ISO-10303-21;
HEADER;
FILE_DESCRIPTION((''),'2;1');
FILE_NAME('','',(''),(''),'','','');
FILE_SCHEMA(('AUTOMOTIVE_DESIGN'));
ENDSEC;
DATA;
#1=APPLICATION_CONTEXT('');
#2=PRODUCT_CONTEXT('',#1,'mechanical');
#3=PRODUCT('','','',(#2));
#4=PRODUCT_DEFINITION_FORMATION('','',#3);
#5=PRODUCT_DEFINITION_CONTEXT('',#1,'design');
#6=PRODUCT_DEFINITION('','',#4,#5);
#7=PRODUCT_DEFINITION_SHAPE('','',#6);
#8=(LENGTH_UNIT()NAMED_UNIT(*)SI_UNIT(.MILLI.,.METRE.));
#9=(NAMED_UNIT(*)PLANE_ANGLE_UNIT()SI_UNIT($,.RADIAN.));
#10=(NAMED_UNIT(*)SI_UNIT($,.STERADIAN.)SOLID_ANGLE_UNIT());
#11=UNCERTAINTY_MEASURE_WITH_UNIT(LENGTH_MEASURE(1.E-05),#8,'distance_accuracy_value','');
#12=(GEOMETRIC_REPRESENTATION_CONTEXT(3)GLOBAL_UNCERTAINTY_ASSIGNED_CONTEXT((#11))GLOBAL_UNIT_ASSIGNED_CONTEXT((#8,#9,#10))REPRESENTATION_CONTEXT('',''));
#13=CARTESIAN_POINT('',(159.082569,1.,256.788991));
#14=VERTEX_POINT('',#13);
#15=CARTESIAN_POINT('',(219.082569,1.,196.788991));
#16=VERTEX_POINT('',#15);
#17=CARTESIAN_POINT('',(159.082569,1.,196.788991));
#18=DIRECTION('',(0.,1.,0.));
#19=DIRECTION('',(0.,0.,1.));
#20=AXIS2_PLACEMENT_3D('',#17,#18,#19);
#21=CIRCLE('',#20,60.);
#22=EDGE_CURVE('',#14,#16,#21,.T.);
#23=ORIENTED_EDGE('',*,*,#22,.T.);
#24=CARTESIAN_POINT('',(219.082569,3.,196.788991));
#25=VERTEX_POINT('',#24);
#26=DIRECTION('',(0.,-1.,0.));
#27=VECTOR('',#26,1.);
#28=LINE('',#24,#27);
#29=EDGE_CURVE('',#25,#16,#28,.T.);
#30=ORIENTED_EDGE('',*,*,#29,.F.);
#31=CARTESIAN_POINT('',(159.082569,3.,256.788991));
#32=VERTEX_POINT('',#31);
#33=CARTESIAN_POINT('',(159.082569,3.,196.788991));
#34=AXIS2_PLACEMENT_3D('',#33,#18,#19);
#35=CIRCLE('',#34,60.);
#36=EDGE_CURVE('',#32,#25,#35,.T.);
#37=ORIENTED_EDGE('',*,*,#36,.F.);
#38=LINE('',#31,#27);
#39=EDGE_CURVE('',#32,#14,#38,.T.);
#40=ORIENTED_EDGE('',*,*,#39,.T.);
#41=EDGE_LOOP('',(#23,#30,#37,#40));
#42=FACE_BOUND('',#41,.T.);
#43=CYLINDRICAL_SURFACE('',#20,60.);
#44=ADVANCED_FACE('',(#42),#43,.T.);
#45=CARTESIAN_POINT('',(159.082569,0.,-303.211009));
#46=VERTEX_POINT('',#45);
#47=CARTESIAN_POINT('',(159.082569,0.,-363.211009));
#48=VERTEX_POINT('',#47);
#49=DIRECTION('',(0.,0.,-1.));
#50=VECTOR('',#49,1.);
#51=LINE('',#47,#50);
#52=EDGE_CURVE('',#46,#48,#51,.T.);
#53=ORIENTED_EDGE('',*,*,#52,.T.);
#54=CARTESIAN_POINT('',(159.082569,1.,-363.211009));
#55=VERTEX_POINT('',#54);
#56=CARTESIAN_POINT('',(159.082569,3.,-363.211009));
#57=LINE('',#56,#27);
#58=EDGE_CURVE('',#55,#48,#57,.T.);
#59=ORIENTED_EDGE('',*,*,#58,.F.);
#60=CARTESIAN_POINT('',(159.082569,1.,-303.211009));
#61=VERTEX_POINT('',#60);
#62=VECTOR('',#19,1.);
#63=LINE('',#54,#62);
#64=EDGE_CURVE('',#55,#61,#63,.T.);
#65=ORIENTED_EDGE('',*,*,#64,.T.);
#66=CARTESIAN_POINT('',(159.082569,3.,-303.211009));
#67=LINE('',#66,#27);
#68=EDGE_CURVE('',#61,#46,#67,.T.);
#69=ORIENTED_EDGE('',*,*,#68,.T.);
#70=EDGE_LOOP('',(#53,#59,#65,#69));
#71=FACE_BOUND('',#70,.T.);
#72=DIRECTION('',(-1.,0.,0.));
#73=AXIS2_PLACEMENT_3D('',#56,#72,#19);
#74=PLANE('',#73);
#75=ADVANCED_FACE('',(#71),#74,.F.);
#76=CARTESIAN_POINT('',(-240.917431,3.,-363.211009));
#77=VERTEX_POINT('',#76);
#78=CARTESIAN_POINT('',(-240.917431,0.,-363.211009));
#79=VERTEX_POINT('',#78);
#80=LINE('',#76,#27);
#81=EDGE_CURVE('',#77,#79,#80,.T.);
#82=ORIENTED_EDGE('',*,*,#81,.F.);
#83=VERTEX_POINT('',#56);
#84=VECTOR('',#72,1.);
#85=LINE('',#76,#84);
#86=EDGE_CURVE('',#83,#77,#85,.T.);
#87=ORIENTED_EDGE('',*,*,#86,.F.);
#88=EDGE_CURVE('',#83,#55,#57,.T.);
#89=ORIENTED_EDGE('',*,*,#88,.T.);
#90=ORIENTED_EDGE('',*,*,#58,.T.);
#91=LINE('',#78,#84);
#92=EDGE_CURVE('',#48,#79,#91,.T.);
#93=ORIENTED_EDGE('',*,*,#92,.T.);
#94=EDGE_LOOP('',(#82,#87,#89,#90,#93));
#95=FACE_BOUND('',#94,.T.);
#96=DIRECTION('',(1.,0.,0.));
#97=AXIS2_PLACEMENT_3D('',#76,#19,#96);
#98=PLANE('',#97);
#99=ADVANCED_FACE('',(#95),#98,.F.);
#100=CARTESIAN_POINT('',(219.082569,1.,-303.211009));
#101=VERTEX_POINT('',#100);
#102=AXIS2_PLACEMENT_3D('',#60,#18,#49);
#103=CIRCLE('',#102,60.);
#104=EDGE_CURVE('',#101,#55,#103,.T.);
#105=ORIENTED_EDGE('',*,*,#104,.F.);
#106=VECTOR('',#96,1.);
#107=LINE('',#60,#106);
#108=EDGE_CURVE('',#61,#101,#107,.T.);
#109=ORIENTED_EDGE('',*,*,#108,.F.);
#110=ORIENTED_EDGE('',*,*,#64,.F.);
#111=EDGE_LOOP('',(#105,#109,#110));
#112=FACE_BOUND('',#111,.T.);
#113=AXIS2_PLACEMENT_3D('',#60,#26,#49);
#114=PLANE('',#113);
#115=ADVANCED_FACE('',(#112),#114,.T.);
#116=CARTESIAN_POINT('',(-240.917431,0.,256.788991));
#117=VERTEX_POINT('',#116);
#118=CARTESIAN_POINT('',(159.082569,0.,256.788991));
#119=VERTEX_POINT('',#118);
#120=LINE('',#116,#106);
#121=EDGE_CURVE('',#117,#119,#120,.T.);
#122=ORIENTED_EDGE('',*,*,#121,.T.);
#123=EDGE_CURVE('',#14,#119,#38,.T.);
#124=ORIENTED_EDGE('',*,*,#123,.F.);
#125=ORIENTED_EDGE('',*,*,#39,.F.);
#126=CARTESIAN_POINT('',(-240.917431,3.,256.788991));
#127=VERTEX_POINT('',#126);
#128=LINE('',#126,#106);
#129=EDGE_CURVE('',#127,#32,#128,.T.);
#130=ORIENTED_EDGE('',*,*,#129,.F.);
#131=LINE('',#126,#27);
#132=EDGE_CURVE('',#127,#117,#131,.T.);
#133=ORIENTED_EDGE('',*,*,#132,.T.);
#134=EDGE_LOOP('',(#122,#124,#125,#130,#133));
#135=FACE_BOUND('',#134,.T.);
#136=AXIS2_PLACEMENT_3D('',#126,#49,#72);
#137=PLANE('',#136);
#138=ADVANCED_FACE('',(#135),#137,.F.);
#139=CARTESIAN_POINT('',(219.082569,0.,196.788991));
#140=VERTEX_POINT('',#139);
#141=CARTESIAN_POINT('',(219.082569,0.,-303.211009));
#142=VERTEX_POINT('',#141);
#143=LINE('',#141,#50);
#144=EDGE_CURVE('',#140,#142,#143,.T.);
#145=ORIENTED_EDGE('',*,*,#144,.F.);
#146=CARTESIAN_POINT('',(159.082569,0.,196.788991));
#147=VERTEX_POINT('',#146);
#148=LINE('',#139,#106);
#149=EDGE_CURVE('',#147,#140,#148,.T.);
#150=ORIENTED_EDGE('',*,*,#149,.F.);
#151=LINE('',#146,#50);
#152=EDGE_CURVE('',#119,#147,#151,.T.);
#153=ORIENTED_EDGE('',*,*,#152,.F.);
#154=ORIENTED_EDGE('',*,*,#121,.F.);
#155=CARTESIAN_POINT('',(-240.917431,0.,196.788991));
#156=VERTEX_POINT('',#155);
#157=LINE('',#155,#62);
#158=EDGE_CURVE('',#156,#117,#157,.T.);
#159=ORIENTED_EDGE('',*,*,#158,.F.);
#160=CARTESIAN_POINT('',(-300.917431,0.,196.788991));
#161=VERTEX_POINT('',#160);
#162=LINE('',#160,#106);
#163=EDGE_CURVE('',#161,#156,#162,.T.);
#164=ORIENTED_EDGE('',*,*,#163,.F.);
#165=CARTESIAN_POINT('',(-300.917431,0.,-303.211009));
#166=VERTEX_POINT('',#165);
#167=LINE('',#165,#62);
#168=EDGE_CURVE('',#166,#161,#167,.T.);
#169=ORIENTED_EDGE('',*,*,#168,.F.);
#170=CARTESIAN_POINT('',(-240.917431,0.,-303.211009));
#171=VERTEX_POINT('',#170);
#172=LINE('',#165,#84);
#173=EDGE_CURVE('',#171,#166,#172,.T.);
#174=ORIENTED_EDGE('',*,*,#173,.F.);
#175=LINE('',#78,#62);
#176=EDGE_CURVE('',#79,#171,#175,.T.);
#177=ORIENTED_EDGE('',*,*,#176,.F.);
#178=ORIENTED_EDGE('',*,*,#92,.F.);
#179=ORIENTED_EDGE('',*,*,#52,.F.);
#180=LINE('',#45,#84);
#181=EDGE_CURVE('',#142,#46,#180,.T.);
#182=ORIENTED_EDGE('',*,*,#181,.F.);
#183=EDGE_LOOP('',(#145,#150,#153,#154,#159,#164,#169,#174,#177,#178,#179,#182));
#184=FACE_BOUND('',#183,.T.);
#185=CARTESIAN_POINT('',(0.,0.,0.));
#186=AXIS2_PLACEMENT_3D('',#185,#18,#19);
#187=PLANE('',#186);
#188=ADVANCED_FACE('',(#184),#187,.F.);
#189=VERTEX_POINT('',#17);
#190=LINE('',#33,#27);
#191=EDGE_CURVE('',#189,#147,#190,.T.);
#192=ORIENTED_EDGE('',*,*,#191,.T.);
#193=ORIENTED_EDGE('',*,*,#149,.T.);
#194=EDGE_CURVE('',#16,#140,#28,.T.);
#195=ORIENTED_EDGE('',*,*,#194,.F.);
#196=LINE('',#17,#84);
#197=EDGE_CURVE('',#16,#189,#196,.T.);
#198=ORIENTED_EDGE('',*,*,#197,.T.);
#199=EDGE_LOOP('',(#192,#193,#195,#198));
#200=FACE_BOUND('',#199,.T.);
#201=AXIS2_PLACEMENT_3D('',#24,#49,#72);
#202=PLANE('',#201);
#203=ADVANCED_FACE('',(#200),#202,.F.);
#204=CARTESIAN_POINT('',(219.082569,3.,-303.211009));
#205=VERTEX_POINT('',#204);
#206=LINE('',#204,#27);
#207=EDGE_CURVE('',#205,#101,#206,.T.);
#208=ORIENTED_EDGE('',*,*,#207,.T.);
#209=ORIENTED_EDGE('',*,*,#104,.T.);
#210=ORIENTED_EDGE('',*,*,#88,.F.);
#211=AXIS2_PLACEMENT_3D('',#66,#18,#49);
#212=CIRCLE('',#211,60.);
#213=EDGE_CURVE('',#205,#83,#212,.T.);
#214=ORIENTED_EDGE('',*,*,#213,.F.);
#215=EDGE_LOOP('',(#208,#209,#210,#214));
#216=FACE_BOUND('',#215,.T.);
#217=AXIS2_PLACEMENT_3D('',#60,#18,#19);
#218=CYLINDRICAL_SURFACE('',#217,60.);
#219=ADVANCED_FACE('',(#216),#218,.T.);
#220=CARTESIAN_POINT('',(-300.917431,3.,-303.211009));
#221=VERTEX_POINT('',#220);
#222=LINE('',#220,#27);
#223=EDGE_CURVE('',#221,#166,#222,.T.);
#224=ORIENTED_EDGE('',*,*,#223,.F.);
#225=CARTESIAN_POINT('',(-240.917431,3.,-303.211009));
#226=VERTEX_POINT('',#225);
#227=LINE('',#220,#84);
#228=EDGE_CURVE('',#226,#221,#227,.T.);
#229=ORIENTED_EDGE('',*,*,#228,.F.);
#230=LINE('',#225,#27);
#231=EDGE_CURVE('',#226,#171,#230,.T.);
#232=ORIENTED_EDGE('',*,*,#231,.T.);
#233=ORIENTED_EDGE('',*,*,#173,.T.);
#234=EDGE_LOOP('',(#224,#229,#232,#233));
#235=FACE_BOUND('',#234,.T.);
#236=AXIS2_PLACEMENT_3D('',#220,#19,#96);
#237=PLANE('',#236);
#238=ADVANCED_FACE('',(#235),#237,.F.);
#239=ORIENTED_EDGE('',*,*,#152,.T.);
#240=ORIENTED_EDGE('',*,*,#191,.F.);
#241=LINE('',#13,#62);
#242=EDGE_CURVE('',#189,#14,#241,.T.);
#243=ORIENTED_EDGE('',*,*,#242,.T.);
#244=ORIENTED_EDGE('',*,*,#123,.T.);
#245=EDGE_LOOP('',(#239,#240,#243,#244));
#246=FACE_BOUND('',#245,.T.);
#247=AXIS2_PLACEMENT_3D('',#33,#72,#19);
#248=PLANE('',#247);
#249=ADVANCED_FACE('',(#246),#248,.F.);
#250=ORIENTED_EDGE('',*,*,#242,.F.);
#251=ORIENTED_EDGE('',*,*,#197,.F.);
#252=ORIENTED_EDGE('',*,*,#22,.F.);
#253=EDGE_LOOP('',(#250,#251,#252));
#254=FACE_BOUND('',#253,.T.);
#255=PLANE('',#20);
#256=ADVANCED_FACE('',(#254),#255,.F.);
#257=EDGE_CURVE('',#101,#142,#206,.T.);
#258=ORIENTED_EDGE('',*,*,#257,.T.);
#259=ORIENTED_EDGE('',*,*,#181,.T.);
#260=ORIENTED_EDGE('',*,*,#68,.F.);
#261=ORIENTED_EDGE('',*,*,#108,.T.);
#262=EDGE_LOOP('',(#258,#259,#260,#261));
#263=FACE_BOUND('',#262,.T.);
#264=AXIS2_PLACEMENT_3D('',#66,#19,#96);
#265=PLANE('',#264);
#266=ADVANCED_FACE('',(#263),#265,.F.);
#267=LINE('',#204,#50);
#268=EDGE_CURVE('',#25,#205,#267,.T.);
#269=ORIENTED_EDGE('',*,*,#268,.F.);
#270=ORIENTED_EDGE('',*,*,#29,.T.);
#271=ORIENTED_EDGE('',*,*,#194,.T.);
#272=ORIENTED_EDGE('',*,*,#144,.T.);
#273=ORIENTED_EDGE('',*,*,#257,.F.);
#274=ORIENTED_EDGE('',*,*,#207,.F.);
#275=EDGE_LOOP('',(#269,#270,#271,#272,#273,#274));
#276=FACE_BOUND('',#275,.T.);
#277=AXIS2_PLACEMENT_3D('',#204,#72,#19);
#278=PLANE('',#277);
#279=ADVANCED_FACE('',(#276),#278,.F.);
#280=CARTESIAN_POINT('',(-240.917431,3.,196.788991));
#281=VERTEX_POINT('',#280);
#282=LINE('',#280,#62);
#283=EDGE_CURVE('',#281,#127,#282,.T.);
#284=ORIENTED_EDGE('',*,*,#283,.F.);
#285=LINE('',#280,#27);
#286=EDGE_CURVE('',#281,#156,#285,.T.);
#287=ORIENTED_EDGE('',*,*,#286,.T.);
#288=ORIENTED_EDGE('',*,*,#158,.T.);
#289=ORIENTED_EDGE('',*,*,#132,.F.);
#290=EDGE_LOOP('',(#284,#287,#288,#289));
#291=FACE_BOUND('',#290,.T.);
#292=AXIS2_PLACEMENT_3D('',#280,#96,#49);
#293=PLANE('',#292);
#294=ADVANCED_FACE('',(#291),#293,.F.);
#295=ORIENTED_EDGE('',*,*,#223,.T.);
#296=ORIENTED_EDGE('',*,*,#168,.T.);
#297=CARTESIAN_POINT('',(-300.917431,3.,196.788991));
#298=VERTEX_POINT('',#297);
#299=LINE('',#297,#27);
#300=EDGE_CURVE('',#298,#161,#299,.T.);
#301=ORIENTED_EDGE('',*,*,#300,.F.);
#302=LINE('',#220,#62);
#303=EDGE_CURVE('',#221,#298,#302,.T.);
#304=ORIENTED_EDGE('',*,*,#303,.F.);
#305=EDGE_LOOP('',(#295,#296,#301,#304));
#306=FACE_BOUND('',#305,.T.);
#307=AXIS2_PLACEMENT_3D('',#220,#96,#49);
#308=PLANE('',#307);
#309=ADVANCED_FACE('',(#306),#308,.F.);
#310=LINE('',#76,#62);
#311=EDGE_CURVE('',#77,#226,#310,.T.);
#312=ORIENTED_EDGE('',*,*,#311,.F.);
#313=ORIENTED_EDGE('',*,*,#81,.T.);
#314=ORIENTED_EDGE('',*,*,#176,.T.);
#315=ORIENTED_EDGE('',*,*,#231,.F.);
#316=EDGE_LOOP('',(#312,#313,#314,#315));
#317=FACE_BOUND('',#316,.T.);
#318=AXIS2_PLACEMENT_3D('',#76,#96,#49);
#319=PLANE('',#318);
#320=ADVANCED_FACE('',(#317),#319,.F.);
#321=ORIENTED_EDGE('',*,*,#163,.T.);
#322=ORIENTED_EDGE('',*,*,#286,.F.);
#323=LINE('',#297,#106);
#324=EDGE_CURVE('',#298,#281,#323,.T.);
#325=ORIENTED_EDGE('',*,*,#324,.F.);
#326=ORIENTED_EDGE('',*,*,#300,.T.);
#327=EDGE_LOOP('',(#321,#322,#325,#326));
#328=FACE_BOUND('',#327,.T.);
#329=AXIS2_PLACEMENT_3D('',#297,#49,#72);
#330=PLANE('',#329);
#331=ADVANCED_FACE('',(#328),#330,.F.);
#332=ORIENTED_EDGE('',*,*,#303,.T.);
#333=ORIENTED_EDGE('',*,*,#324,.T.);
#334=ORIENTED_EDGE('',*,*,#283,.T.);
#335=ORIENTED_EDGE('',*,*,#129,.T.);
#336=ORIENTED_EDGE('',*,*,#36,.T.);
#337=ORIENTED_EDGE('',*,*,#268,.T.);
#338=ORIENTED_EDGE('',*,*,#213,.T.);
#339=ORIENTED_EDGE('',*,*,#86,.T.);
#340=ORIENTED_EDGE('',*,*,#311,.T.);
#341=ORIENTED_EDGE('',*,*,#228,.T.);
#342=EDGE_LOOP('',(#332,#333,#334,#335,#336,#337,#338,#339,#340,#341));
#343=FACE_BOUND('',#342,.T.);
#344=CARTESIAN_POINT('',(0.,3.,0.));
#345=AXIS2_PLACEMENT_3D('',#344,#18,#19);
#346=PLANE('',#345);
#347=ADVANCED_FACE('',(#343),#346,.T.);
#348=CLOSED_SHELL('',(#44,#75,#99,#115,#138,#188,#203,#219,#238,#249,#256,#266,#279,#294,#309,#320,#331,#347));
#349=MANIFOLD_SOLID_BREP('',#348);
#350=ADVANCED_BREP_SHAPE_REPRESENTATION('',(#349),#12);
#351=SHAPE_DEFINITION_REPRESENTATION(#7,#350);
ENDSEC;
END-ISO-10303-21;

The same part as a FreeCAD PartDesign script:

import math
import FreeCAD as App
import Part
import Sketcher
from FreeCAD import Vector

doc = App.newDocument("Part")
body = doc.addObject("PartDesign::Body", "Body")

sketch1 = body.newObject("Sketcher::SketchObject", "Sketch")
sketch1.AttachmentSupport = (doc.getObject("XZ_Plane"), [""])
sketch1.MapMode = "FlatFace"
sketch1.addGeometry([
    Part.LineSegment(Vector(-241, 197, 0), Vector(-241, 257, 0)),
    Part.LineSegment(Vector(-241, 257, 0), Vector(159, 257, 0)),
    Part.LineSegment(Vector(159, 257, 0), Vector(159, 197, 0)),
    Part.LineSegment(Vector(159, 197, 0), Vector(219, 197, 0)),
    Part.LineSegment(Vector(219, 197, 0), Vector(219, -303, 0)),
    Part.LineSegment(Vector(219, -303, 0), Vector(159, -303, 0)),
    Part.LineSegment(Vector(159, -303, 0), Vector(159, -363, 0)),
    Part.LineSegment(Vector(159, -363, 0), Vector(-241, -363, 0)),
    Part.LineSegment(Vector(-241, -363, 0), Vector(-241, -303, 0)),
    Part.LineSegment(Vector(-241, -303, 0), Vector(-301, -303, 0)),
    Part.LineSegment(Vector(-301, -303, 0), Vector(-301, 197, 0)),
    Part.LineSegment(Vector(-301, 197, 0), Vector(-241, 197, 0)),
], False)
sketch1.addConstraint([
    Sketcher.Constraint("Coincident", 0, 2, 1, 1),
    Sketcher.Constraint("Coincident", 1, 2, 2, 1),
    Sketcher.Constraint("Coincident", 2, 2, 3, 1),
    Sketcher.Constraint("Coincident", 3, 2, 4, 1),
    Sketcher.Constraint("Coincident", 4, 2, 5, 1),
    Sketcher.Constraint("Coincident", 5, 2, 6, 1),
    Sketcher.Constraint("Coincident", 6, 2, 7, 1),
    Sketcher.Constraint("Coincident", 7, 2, 8, 1),
    Sketcher.Constraint("Coincident", 8, 2, 9, 1),
    Sketcher.Constraint("Coincident", 9, 2, 10, 1),
    Sketcher.Constraint("Coincident", 10, 2, 11, 1),
    Sketcher.Constraint("Coincident", 11, 2, 0, 1),
    Sketcher.Constraint("Vertical", 0),
    Sketcher.Constraint("Horizontal", 1),
    Sketcher.Constraint("Vertical", 2),
    Sketcher.Constraint("Horizontal", 3),
    Sketcher.Constraint("Vertical", 4),
    Sketcher.Constraint("Horizontal", 5),
    Sketcher.Constraint("Vertical", 6),
    Sketcher.Constraint("Horizontal", 7),
    Sketcher.Constraint("Vertical", 8),
    Sketcher.Constraint("Horizontal", 9),
    Sketcher.Constraint("Vertical", 10),
    Sketcher.Constraint("Horizontal", 11),
    Sketcher.Constraint("Horizontal", 5, 2, 8, 2),
    Sketcher.Constraint("Horizontal", 3, 2, 10, 2),
    Sketcher.Constraint("Vertical", 2, 2, 5, 2),
    Sketcher.Constraint("Vertical", 0, 2, 7, 2),
    Sketcher.Constraint("Equal", 5, 9),
    Sketcher.Constraint("Equal", 11, 0),
    Sketcher.Constraint("Equal", 2, 6),
    Sketcher.Constraint("DistanceX", 1, 1, 1, 2, 400.0),
    Sketcher.Constraint("DistanceX", 3, 1, 3, 2, 60.0),
    Sketcher.Constraint("DistanceY", 4, 2, 4, 1, 500.0),
    Sketcher.Constraint("DistanceX", 0, 2, -1, 1, 240.917431),
    Sketcher.Constraint("DistanceY", -1, 1, 0, 2, 256.788991),
])
pad1 = body.newObject("PartDesign::Pad", "Pad")
pad1.Profile = sketch1
pad1.Length = 3
pad1.Reversed = True

sketch2 = body.newObject("Sketcher::SketchObject", "Sketch001")
sketch2.AttachmentSupport = (doc.getObject("XZ_Plane"), [""])
sketch2.MapMode = "FlatFace"
sketch2.AttachmentOffset = App.Placement(Vector(0, 0, -3), App.Rotation())
sketch2.addGeometry([
    Part.LineSegment(Vector(159, -303, 0), Vector(219, -303, 0)),
    Part.ArcOfCircle(Part.Circle(Vector(159, -303, 0), Vector(0, 0, 1), 60), math.radians(-90), math.radians(0)),
    Part.LineSegment(Vector(159, -363, 0), Vector(159, -303, 0)),
    Part.LineSegment(Vector(159, 197, 0), Vector(159, 257, 0)),
    Part.ArcOfCircle(Part.Circle(Vector(159, 197, 0), Vector(0, 0, 1), 60), math.radians(0), math.radians(90)),
    Part.LineSegment(Vector(219, 197, 0), Vector(159, 197, 0)),
], False)
sketch2.addConstraint([
    Sketcher.Constraint("Coincident", 0, 2, 1, 2),
    Sketcher.Constraint("Coincident", 1, 1, 2, 1),
    Sketcher.Constraint("Coincident", 2, 2, 0, 1),
    Sketcher.Constraint("Coincident", 3, 2, 4, 2),
    Sketcher.Constraint("Coincident", 4, 1, 5, 1),
    Sketcher.Constraint("Coincident", 5, 2, 3, 1),
    Sketcher.Constraint("Horizontal", 0),
    Sketcher.Constraint("Vertical", 2),
    Sketcher.Constraint("Vertical", 3),
    Sketcher.Constraint("Horizontal", 5),
    Sketcher.Constraint("Coincident", 2, 2, 1, 3),
    Sketcher.Constraint("Coincident", 5, 2, 4, 3),
    Sketcher.Constraint("Equal", 1, 4),
    Sketcher.Constraint("Vertical", 1, 3, 4, 3),
    Sketcher.Constraint("Radius", 1, 60.0),
    Sketcher.Constraint("DistanceY", 1, 3, 4, 3, 500.0),
    Sketcher.Constraint("DistanceX", -1, 1, 1, 3, 159.082569),
    Sketcher.Constraint("DistanceY", 1, 3, -1, 1, 303.211009),
])
pad2 = body.newObject("PartDesign::Pad", "Pad001")
pad2.Profile = sketch2
pad2.Length = 2

doc.recompute()
